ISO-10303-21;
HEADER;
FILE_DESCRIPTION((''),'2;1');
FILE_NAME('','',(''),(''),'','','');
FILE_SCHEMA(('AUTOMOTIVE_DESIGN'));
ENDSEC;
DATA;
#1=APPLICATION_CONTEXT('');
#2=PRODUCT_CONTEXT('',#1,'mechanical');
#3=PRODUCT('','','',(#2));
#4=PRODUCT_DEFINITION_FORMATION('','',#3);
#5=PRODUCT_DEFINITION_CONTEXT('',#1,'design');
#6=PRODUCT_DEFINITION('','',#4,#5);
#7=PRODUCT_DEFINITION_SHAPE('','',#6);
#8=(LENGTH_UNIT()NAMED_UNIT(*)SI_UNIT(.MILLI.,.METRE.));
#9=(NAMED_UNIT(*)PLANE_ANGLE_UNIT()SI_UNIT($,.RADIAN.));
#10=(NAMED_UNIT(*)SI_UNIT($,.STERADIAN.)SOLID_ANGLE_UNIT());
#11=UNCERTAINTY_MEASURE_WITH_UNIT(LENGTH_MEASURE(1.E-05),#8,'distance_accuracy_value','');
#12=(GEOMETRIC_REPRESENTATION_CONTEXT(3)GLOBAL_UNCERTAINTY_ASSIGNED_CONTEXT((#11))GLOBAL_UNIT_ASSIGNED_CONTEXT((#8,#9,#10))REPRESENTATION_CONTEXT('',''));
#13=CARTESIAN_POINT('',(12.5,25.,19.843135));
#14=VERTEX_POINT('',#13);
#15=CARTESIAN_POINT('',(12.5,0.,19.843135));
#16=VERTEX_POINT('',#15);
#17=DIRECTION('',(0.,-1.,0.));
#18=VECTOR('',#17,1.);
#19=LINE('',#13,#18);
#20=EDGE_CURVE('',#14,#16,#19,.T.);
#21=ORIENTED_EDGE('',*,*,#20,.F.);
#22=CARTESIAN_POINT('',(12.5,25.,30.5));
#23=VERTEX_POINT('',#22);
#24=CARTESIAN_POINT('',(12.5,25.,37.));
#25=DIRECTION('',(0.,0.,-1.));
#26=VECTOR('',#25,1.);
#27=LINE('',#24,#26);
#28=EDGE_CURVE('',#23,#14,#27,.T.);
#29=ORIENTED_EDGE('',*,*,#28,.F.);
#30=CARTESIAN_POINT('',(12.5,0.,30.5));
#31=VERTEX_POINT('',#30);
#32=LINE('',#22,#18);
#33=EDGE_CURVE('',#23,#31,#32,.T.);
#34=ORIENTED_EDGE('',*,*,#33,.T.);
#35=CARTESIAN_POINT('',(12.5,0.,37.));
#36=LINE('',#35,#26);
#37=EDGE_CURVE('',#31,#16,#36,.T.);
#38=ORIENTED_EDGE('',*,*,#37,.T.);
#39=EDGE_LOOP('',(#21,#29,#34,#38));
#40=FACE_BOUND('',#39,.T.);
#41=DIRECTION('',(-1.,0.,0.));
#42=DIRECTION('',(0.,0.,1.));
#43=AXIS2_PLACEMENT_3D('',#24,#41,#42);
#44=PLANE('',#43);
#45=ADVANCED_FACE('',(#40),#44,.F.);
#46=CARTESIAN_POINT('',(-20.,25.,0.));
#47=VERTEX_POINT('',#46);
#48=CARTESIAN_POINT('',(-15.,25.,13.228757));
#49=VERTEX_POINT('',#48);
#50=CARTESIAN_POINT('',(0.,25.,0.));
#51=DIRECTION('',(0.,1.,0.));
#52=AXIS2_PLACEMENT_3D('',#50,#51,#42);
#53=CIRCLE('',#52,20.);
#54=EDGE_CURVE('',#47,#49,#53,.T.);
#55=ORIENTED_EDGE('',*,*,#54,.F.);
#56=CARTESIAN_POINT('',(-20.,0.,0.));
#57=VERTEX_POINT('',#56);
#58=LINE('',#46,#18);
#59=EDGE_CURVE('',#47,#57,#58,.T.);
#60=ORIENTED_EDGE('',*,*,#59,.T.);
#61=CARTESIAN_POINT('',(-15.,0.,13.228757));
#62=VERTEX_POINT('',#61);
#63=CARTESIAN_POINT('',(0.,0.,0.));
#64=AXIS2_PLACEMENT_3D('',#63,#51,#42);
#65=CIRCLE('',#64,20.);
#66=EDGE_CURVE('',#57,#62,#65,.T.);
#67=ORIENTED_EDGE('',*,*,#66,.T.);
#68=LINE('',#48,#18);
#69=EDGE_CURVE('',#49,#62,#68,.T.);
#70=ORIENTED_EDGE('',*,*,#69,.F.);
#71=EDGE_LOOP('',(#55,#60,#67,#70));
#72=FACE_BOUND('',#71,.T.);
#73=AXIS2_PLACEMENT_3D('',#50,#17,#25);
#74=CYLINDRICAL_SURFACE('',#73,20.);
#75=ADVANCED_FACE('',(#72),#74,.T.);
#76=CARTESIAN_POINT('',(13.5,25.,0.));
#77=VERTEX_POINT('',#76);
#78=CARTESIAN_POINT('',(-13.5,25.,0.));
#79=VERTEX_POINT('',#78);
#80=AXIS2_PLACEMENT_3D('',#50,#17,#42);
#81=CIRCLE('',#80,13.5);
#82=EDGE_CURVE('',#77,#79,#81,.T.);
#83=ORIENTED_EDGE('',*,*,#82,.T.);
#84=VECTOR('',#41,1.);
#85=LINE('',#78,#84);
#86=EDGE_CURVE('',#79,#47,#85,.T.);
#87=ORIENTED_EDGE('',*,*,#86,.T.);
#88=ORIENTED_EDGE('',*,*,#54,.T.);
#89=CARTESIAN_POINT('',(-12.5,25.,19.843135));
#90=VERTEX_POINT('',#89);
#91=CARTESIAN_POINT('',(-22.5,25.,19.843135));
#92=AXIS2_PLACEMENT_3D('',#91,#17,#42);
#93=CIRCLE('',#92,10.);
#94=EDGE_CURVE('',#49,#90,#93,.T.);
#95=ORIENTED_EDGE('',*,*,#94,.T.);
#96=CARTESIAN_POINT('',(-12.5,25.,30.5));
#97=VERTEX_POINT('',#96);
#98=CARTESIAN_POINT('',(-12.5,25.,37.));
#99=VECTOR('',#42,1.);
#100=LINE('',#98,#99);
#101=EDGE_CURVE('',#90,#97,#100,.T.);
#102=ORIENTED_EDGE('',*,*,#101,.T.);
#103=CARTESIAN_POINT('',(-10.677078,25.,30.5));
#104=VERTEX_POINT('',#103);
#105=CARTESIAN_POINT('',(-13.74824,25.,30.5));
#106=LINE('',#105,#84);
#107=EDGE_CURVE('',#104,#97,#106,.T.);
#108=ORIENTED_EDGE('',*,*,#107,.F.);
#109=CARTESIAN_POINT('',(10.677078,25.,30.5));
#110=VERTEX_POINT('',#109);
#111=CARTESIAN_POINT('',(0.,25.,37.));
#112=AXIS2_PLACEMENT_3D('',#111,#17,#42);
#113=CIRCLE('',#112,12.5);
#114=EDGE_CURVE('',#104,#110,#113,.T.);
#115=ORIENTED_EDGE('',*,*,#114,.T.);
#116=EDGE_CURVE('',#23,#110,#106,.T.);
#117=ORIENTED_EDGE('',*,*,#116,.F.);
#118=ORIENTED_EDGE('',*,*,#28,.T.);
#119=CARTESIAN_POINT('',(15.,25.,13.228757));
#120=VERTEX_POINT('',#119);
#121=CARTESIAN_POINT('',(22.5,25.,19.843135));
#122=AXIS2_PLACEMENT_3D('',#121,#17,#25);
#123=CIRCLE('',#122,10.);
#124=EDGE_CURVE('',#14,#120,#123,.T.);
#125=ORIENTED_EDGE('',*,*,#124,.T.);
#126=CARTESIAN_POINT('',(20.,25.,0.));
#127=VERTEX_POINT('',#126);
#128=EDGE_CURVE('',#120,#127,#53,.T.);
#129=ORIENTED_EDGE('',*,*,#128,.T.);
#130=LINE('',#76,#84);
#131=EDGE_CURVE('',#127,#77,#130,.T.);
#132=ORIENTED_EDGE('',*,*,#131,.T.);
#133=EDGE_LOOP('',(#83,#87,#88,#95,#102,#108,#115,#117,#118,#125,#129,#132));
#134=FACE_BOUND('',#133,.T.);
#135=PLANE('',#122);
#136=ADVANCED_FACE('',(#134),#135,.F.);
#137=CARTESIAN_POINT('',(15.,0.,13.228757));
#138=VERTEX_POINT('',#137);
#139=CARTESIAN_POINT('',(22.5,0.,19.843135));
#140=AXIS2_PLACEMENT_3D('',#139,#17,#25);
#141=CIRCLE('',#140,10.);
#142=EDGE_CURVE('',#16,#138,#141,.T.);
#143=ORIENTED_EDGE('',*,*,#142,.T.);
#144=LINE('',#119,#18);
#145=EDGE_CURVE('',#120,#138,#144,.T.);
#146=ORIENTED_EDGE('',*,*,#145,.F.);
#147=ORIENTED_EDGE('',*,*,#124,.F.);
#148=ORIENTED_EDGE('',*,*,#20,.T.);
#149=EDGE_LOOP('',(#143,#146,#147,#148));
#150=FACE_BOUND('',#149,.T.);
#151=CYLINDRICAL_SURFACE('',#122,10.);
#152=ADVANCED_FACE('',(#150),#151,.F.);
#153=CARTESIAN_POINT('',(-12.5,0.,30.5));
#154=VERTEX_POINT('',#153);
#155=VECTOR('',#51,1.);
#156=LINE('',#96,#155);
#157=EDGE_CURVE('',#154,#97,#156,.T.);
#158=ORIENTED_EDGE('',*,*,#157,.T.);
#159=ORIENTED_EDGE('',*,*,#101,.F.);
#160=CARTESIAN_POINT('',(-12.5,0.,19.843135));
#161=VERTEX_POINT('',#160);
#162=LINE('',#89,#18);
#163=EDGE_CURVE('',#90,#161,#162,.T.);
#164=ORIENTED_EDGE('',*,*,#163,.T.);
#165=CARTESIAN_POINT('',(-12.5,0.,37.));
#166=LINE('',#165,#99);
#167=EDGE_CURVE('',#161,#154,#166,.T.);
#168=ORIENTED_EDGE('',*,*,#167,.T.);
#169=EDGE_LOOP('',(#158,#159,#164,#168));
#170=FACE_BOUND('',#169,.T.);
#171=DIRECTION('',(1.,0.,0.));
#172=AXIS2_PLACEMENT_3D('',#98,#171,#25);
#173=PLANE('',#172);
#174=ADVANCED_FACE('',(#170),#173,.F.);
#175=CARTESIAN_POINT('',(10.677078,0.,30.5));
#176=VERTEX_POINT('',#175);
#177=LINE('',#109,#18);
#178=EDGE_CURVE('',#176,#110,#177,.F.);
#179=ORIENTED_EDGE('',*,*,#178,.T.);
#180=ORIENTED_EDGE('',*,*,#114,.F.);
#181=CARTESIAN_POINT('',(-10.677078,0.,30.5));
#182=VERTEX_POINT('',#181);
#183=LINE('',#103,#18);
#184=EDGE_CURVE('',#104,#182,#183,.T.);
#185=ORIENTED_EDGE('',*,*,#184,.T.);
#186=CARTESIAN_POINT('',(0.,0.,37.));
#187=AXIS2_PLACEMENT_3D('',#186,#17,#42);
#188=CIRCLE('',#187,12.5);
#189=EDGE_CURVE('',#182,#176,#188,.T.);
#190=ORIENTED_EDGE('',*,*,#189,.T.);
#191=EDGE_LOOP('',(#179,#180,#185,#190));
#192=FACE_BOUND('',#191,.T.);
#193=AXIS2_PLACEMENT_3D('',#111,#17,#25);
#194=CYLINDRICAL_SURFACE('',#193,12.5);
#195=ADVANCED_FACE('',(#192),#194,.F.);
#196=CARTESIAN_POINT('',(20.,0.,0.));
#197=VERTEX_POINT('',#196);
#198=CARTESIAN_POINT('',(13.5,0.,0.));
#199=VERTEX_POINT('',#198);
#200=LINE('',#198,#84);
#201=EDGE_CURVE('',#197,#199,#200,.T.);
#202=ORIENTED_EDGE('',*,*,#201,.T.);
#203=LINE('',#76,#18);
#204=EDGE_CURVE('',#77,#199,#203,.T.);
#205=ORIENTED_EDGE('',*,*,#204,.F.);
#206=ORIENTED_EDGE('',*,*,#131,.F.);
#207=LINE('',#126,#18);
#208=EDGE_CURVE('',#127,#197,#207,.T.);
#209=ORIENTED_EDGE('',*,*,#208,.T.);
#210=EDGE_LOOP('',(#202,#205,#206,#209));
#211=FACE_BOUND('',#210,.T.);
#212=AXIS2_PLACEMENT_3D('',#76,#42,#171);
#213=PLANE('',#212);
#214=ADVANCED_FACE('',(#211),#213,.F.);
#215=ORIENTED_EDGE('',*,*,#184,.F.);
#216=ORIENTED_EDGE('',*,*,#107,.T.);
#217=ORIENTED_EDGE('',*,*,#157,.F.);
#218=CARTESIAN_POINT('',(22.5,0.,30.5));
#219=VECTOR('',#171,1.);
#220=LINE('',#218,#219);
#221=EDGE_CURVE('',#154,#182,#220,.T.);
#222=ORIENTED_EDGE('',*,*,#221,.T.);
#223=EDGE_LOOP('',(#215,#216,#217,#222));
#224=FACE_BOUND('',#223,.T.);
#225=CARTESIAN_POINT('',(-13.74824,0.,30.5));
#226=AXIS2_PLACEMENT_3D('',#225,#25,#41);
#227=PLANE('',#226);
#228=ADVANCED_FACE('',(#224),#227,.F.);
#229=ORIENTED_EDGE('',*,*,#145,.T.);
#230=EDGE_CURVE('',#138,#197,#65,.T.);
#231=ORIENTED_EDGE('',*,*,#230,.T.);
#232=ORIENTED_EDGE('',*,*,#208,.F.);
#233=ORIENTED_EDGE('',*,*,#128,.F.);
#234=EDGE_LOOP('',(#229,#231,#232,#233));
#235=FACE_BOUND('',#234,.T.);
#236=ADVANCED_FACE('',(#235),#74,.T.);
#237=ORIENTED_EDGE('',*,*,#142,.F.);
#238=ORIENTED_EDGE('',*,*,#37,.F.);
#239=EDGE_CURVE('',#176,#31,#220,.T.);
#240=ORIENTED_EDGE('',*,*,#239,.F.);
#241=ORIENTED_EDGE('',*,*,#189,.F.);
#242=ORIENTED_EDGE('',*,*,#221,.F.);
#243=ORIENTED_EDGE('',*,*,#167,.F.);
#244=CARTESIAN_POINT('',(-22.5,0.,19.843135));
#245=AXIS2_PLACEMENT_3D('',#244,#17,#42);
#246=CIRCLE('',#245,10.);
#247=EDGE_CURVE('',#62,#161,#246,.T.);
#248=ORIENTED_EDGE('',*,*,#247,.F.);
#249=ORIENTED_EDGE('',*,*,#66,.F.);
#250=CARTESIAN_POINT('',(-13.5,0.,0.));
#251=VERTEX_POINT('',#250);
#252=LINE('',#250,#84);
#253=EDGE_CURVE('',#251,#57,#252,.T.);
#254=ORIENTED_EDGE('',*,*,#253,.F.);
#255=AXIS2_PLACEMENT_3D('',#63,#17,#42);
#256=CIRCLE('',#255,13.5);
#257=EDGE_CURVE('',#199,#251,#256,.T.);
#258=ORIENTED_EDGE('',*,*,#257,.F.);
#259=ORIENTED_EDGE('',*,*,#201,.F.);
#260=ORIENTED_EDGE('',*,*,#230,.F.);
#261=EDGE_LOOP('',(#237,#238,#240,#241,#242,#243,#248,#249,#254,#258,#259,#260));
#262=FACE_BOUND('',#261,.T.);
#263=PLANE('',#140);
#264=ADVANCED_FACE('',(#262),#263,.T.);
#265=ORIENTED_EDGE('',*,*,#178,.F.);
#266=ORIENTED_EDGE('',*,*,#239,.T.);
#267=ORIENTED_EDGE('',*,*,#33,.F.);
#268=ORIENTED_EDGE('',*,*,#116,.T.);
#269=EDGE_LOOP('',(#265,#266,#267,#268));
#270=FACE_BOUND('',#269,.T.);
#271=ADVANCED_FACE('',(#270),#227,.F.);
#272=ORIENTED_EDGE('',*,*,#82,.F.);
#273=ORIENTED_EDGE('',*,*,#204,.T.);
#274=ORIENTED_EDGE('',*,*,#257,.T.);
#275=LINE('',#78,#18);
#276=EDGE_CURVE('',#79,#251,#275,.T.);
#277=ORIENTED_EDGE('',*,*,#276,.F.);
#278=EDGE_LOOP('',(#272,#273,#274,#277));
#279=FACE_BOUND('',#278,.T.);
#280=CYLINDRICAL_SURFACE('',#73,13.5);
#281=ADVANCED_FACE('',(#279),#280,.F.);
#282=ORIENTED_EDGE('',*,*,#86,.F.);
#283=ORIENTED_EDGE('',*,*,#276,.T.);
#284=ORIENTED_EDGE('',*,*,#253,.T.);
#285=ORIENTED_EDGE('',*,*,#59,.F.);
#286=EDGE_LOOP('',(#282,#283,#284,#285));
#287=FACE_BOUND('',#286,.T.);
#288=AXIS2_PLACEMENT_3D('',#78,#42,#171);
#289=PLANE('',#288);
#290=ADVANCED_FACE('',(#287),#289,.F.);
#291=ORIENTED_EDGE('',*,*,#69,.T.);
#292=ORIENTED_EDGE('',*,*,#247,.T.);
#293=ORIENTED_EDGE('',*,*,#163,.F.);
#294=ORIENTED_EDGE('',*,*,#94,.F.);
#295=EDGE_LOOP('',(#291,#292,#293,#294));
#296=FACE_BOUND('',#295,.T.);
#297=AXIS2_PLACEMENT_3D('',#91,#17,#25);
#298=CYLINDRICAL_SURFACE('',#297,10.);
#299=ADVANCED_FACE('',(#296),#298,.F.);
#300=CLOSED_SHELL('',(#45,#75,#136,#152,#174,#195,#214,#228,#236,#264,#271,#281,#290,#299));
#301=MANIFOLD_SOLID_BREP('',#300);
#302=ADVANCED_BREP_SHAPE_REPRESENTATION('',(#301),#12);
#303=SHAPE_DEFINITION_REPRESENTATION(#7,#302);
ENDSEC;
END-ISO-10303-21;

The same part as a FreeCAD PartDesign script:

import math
import FreeCAD as App
import Part
import Sketcher
from FreeCAD import Vector

doc = App.newDocument("Part")
body = doc.addObject("PartDesign::Body", "Body")

sketch1 = body.newObject("Sketcher::SketchObject", "Sketch")
sketch1.AttachmentSupport = (doc.getObject("XZ_Plane"), [""])
sketch1.MapMode = "FlatFace"
sketch1.addGeometry([
    Part.LineSegment(Vector(-12, 20, 0), Vector(-12, 37, 0)),
    Part.ArcOfCircle(Part.Circle(Vector(0, 37, 0), Vector(0, 0, 1), 12), math.radians(180), math.radians(360)),
    Part.LineSegment(Vector(12, 37, 0), Vector(12, 20, 0)),
    Part.ArcOfCircle(Part.Circle(Vector(23, 20, 0), Vector(0, 0, 1), 10), math.radians(180), math.radians(221)),
    Part.ArcOfCircle(Part.Circle(Vector(0, 0, 0), Vector(0, 0, 1), 20), math.radians(0), math.radians(41)),
    Part.LineSegment(Vector(20, 0, 0), Vector(14, 0, 0)),
    Part.ArcOfCircle(Part.Circle(Vector(0, 0, 0), Vector(0, 0, 1), 14), math.radians(0), math.radians(180)),
    Part.LineSegment(Vector(-14, 0, 0), Vector(-20, 0, 0)),
    Part.ArcOfCircle(Part.Circle(Vector(0, 0, 0), Vector(0, 0, 1), 20), math.radians(139), math.radians(180)),
    Part.ArcOfCircle(Part.Circle(Vector(-23, 20, 0), Vector(0, 0, 1), 10), math.radians(-41), math.radians(0)),
], False)
sketch1.addConstraint([
    Sketcher.Constraint("Tangent", 0, 2, 1, 1),
    Sketcher.Constraint("Tangent", 1, 2, 2, 1),
    Sketcher.Constraint("Tangent", 2, 2, 3, 1),
    Sketcher.Constraint("Tangent", 3, 2, 4, 2),
    Sketcher.Constraint("Coincident", 4, 1, 5, 1),
    Sketcher.Constraint("Coincident", 5, 2, 6, 1),
    Sketcher.Constraint("Coincident", 6, 2, 7, 1),
    Sketcher.Constraint("Coincident", 7, 2, 8, 2),
    Sketcher.Constraint("Tangent", 8, 1, 9, 1),
    Sketcher.Constraint("Tangent", 9, 2, 0, 1),
    Sketcher.Constraint("Vertical", 0),
    Sketcher.Constraint("Vertical", 2),
    Sketcher.Constraint("Horizontal", 5),
    Sketcher.Constraint("Horizontal", 7),
    Sketcher.Constraint("Coincident", 4, 3, -1, 1),
    Sketcher.Constraint("Coincident", 6, 3, -1, 1),
    Sketcher.Constraint("Coincident", 8, 3, -1, 1),
    Sketcher.Constraint("Equal", 4, 8),
    Sketcher.Constraint("Equal", 3, 9),
    Sketcher.Constraint("PointOnObject", 1, 3, -2),
    Sketcher.Constraint("PointOnObject", 4, 1, -1),
    Sketcher.Constraint("PointOnObject", 6, 2, -1),
    Sketcher.Constraint("Radius", 3, 10.0),
    Sketcher.Constraint("Radius", 4, 20.0),
    Sketcher.Constraint("Radius", 1, 12.5),
    Sketcher.Constraint("Radius", 6, 13.5),
    Sketcher.Constraint("DistanceY", -1, 1, 1, 3, 37.0),
])
pad1 = body.newObject("PartDesign::Pad", "Pad")
pad1.Profile = sketch1
pad1.Length = 25
pad1.Reversed = True

sketch2 = body.newObject("Sketcher::SketchObject", "Sketch001")
sketch2.AttachmentSupport = (doc.getObject("XZ_Plane"), [""])
sketch2.MapMode = "FlatFace"
sketch2.AttachmentOffset = App.Placement(Vector(0, 0, -25), App.Rotation())
sketch2.addGeometry([
    Part.LineSegment(Vector(-14, 30, 0), Vector(-14, 40, 0)),
    Part.LineSegment(Vector(-14, 40, 0), Vector(15, 40, 0)),
    Part.LineSegment(Vector(15, 40, 0), Vector(15, 30, 0)),
    Part.LineSegment(Vector(15, 30, 0), Vector(-14, 30, 0)),
], False)
sketch2.addConstraint([
    Sketcher.Constraint("Coincident", 0, 2, 1, 1),
    Sketcher.Constraint("Coincident", 1, 2, 2, 1),
    Sketcher.Constraint("Coincident", 2, 2, 3, 1),
    Sketcher.Constraint("Coincident", 3, 2, 0, 1),
    Sketcher.Constraint("Vertical", 0),
    Sketcher.Constraint("Horizontal", 1),
    Sketcher.Constraint("Vertical", 2),
    Sketcher.Constraint("Horizontal", 3),
    Sketcher.Constraint("DistanceY", 0, 1, 0, 2, 10.0),
    Sketcher.Constraint("DistanceY", -1, 1, 0, 2, 40.5),
    Sketcher.Constraint("DistanceX", 1, 1, 1, 2, 28.626473),
    Sketcher.Constraint("DistanceX", 0, 2, -1, 1, 13.74824),
])
pocket1 = body.newObject("PartDesign::Pocket", "Pocket")
pocket1.Profile = sketch2
pocket1.Type = "ThroughAll"
pocket1.Reversed = True

doc.recompute()
